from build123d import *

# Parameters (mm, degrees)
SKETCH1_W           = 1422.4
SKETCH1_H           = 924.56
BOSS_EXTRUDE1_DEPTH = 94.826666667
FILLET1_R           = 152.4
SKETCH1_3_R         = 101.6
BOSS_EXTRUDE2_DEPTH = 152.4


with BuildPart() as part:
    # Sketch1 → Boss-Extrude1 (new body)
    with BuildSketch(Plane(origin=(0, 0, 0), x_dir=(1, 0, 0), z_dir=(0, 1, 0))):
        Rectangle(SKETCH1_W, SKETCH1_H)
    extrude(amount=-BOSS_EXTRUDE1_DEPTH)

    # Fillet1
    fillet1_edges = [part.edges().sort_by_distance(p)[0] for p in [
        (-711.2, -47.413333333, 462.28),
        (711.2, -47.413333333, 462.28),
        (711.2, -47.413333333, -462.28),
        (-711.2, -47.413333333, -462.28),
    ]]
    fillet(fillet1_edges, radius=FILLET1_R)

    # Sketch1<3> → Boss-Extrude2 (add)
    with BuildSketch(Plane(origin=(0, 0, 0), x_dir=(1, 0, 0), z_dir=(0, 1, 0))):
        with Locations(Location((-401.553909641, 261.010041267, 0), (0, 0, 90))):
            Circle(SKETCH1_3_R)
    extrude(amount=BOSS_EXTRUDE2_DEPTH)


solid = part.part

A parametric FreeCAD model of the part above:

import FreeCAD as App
import Part
import Sketcher

V = App.Vector
Q = App.Units.Quantity


def edges_at(feature, points):
    """Names of the edges that pass closest to the given points."""
    edges = feature.Shape.Edges
    near = lambda p: min(range(len(edges)), key=lambda i: edges[i].distToShape(Part.Vertex(*p))[0])
    return sorted({f"Edge{near(p) + 1}" for p in points})


def add_polygon(sketch, points):
    """Adds a closed chain of lines whose ends are joined by coincident constraints."""
    first, n = sketch.GeometryCount, len(points)
    for a, b in zip(points, points[1:] + points[:1]):
        sketch.addGeometry(Part.LineSegment(App.Vector(*a, 0), App.Vector(*b, 0)), False)
    for i in range(n):
        sketch.addConstraint(Sketcher.Constraint("Coincident", first + i, 2, first + (i + 1) % n, 1))

doc = App.newDocument("Part")
body = doc.addObject("PartDesign::Body", "Body")

sketch1 = body.newObject("Sketcher::SketchObject", "Sketch")
sketch1.AttachmentSupport = (doc.getObject("XZ_Plane"), [""])
sketch1.MapMode = "FlatFace"
add_polygon(sketch1, [(-711, -462), (-711, 462), (711, 462), (711, -462)])
sketch1.addConstraint([
    Sketcher.Constraint("Vertical", 0),
    Sketcher.Constraint("Horizontal", 1),
    Sketcher.Constraint("Vertical", 2),
    Sketcher.Constraint("Horizontal", 3),
    Sketcher.Constraint("Symmetric", 0, 2, 2, 2, -1, 1),
    Sketcher.Constraint("DistanceX", 1, 1, 1, 2, Q("56 in")),
    Sketcher.Constraint("DistanceY", 0, 1, 0, 2, Q("36.4 in")),
])
pad1 = body.newObject("PartDesign::Pad", "Pad")
pad1.Profile = sketch1
pad1.Length = 94.826667
doc.recompute()

fillet = body.newObject("PartDesign::Fillet", "Fillet")
fillet.Base = (pad1, edges_at(pad1, [
    (-711.2, -47.413, 462.28),
    (711.2, -47.413, 462.28),
    (711.2, -47.413, -462.28),
    (-711.2, -47.413, -462.28),
]))
fillet.Radius = Q("6 in")

sketch2 = body.newObject("Sketcher::SketchObject", "Sketch001")
sketch2.AttachmentSupport = (doc.getObject("XZ_Plane"), [""])
sketch2.MapMode = "FlatFace"
sketch2.addGeometry(Part.Circle(V(-402, -261, 0), V(0, 0, 1), 102), False)
sketch2.addConstraint([
    Sketcher.Constraint("Diameter", 0, Q("8 in")),
    Sketcher.Constraint("DistanceX", 0, 3, -1, 1, 401.55391),
    Sketcher.Constraint("DistanceY", 0, 3, -1, 1, 261.010041),
])
pad2 = body.newObject("PartDesign::Pad", "Pad001")
pad2.Profile = sketch2
pad2.Length = Q("6 in")
pad2.Reversed = True

doc.recompute()
